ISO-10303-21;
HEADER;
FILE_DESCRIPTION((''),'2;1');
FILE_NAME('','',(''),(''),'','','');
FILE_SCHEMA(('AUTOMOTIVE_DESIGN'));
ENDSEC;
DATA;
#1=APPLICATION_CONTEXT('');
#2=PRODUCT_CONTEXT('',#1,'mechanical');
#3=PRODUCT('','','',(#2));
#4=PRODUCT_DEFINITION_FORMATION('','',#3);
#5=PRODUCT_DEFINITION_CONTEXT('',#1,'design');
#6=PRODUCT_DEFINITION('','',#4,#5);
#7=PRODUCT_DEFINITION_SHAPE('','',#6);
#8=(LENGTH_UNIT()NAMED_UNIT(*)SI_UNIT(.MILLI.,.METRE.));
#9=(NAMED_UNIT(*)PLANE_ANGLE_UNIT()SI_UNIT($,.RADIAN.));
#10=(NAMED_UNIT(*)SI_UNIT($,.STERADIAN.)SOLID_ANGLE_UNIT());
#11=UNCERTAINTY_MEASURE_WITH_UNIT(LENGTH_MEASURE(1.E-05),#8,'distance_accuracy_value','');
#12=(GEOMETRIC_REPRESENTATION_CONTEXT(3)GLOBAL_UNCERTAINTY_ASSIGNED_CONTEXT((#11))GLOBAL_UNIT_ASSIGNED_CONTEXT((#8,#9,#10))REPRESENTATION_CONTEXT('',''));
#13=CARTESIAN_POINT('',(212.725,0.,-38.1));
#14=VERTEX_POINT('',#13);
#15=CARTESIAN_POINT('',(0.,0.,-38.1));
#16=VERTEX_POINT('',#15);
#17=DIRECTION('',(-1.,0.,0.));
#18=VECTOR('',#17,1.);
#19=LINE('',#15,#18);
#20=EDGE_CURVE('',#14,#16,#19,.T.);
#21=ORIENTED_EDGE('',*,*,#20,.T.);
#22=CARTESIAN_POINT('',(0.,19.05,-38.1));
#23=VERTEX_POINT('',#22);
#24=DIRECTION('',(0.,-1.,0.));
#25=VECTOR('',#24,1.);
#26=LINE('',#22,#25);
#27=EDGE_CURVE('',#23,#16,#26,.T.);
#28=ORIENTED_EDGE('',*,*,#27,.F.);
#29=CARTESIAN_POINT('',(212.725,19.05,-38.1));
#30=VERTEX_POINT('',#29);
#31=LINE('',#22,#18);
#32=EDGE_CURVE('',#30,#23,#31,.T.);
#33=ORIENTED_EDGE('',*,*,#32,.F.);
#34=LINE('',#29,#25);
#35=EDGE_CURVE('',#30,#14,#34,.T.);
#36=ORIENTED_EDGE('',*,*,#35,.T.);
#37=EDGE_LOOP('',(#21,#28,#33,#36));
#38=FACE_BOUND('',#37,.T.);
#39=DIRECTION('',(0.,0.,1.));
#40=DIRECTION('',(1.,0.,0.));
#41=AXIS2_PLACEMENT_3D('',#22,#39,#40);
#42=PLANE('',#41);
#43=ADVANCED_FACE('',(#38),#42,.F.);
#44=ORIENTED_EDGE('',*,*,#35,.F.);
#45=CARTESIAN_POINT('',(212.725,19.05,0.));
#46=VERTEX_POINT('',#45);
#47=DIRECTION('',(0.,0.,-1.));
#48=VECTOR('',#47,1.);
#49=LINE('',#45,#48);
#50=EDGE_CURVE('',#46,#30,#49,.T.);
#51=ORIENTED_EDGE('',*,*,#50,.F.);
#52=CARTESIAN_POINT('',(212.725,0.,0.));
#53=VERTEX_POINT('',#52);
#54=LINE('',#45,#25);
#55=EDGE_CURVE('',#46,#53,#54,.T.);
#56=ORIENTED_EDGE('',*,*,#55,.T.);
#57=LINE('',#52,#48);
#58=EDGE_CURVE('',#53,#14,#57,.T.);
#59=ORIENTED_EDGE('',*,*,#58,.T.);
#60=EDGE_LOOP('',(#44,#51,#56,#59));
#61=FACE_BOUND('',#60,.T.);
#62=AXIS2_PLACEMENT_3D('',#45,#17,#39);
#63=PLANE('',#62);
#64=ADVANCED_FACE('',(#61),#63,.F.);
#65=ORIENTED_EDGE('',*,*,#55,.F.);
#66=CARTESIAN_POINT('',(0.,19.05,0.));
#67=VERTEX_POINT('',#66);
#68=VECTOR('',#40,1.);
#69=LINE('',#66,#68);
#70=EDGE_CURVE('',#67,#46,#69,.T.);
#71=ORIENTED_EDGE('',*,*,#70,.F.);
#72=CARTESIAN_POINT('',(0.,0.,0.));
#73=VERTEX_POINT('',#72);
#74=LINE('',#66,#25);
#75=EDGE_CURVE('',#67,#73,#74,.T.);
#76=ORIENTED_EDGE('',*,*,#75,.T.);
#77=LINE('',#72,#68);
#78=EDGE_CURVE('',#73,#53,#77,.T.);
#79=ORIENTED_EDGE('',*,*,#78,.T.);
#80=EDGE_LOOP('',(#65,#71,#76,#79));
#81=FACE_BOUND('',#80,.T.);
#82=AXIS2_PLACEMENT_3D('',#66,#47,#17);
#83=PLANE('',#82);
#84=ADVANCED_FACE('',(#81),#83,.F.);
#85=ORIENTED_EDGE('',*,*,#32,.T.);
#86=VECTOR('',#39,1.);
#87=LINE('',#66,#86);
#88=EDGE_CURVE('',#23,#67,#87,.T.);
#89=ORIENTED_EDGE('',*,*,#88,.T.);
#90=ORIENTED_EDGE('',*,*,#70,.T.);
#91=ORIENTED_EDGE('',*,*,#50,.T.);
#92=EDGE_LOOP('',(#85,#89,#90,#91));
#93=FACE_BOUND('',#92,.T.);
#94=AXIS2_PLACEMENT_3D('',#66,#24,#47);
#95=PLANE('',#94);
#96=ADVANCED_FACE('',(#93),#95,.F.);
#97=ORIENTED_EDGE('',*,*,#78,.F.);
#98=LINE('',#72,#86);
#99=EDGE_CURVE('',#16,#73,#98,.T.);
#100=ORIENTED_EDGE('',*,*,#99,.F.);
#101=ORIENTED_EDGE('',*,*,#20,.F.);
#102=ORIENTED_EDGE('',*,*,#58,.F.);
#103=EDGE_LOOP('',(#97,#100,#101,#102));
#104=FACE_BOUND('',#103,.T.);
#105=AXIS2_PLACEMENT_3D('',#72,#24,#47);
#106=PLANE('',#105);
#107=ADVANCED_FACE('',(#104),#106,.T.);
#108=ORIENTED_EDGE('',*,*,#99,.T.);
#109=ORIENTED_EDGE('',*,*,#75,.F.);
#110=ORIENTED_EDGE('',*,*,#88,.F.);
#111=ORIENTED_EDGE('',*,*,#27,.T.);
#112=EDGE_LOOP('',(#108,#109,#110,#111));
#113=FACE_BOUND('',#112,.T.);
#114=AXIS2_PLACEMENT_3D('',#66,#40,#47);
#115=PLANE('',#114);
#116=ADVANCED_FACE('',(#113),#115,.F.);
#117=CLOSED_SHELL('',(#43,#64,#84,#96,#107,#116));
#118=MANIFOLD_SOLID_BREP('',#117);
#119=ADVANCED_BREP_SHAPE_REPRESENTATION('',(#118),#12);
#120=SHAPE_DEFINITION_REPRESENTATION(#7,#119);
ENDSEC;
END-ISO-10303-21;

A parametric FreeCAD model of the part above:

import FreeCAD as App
import Part
import Sketcher
Q = App.Units.Quantity

doc = App.newDocument("Part")
params = doc.addObject("Spreadsheet::Sheet", "Params")
for row, (alias, value) in enumerate([
    ("sketch1_height", "1.5 in"),
    ("sketch1_width", "8.375 in"),
    ("pad1_length", "0.75 in"),
], start=1):
    params.set(f"A{row}", alias)
    params.set(f"B{row}", "=" + value)
    params.setAlias(f"B{row}", alias)

body = doc.addObject("PartDesign::Body", "Body")

# Sketch on XZ plane
sketch1 = body.newObject("Sketcher::SketchObject", "Sketch")
sketch1.AttachmentSupport = (doc.getObject("XZ_Plane"), [""])
sketch1.MapMode = "FlatFace"
sketch1.addGeometry(Part.LineSegment(App.Vector(0, -38, 0), App.Vector(0, 0, 0)), False)
sketch1.addGeometry(Part.LineSegment(App.Vector(0, 0, 0), App.Vector(213, 0, 0)), False)
sketch1.addGeometry(Part.LineSegment(App.Vector(213, 0, 0), App.Vector(213, -38, 0)), False)
sketch1.addGeometry(Part.LineSegment(App.Vector(213, -38, 0), App.Vector(0, -38, 0)), False)
sketch1.addConstraint(Sketcher.Constraint("Coincident", 0, 2, 1, 1))
sketch1.addConstraint(Sketcher.Constraint("Coincident", 1, 2, 2, 1))
sketch1.addConstraint(Sketcher.Constraint("Coincident", 2, 2, 3, 1))
sketch1.addConstraint(Sketcher.Constraint("Coincident", 3, 2, 0, 1))
sketch1.addConstraint(Sketcher.Constraint("Vertical", 0))
sketch1.addConstraint(Sketcher.Constraint("Horizontal", 1))
sketch1.addConstraint(Sketcher.Constraint("Vertical", 2))
sketch1.addConstraint(Sketcher.Constraint("Horizontal", 3))
sketch1.addConstraint(Sketcher.Constraint("Coincident", 0, 2, -1, 1))
sketch1.addConstraint(Sketcher.Constraint("DistanceY", 0, 1, 0, 2, Q("1.5 in")))
sketch1.addConstraint(Sketcher.Constraint("DistanceX", 1, 1, 1, 2, Q("8.375 in")))
sketch1.setExpression("Constraints[9]", "Params.sketch1_height")
sketch1.setExpression("Constraints[10]", "Params.sketch1_width")
pad1 = body.newObject("PartDesign::Pad", "Pad")
pad1.Profile = sketch1
pad1.setExpression("Length", "Params.pad1_length")
pad1.Reversed = True

doc.recompute()
